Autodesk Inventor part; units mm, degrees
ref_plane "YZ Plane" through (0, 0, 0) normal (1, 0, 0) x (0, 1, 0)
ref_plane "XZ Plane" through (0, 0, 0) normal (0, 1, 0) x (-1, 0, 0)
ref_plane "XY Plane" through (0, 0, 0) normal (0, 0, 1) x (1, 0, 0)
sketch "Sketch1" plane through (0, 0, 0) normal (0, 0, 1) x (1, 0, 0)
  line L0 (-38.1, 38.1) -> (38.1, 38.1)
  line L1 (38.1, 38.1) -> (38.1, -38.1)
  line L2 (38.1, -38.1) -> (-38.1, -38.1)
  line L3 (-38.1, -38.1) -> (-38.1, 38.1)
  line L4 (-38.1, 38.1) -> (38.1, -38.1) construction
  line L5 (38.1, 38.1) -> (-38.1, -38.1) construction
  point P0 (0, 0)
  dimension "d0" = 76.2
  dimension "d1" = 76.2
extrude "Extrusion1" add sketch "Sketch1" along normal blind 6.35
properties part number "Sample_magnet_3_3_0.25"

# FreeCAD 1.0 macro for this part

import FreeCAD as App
import Part
import Sketcher
from FreeCAD import Vector
Q = App.Units.Quantity


def add_polygon(sketch, points):
    """Adds a closed chain of lines whose ends are joined by coincident constraints."""
    first, n = sketch.GeometryCount, len(points)
    for a, b in zip(points, points[1:] + points[:1]):
        sketch.addGeometry(Part.LineSegment(App.Vector(*a, 0), App.Vector(*b, 0)), False)
    for i in range(n):
        sketch.addConstraint(Sketcher.Constraint("Coincident", first + i, 2, first + (i + 1) % n, 1))

doc = App.newDocument("Part")
body = doc.addObject("PartDesign::Body", "Body")

# Sketch on XY plane
sketch1 = doc.addObject("Sketcher::SketchObject", "Sketch")
body.addObject(sketch1)
sketch1.AttachmentSupport = (doc.XY_Plane, [""])
sketch1.MapMode = "FlatFace"
add_polygon(sketch1, [(38, 38), (-38, 38), (-38, -38), (38, -38)])  # lines 0-3
sketch1.addConstraint([
    Sketcher.Constraint("Horizontal", 0),
    Sketcher.Constraint("Vertical", 1),
    Sketcher.Constraint("Horizontal", 2),
    Sketcher.Constraint("Vertical", 3),
    Sketcher.Constraint("Symmetric", 0, 2, 2, 2, -1, 1),
    Sketcher.Constraint("Equal", 2, 1),
    Sketcher.Constraint("DistanceX", 0, 2, 0, 1, Q("3 in")),
])
pad1 = doc.addObject("PartDesign::Pad", "Pad")
body.addObject(pad1)
pad1.Profile = sketch1
pad1.Length = Q("0.25 in")

doc.recompute()
